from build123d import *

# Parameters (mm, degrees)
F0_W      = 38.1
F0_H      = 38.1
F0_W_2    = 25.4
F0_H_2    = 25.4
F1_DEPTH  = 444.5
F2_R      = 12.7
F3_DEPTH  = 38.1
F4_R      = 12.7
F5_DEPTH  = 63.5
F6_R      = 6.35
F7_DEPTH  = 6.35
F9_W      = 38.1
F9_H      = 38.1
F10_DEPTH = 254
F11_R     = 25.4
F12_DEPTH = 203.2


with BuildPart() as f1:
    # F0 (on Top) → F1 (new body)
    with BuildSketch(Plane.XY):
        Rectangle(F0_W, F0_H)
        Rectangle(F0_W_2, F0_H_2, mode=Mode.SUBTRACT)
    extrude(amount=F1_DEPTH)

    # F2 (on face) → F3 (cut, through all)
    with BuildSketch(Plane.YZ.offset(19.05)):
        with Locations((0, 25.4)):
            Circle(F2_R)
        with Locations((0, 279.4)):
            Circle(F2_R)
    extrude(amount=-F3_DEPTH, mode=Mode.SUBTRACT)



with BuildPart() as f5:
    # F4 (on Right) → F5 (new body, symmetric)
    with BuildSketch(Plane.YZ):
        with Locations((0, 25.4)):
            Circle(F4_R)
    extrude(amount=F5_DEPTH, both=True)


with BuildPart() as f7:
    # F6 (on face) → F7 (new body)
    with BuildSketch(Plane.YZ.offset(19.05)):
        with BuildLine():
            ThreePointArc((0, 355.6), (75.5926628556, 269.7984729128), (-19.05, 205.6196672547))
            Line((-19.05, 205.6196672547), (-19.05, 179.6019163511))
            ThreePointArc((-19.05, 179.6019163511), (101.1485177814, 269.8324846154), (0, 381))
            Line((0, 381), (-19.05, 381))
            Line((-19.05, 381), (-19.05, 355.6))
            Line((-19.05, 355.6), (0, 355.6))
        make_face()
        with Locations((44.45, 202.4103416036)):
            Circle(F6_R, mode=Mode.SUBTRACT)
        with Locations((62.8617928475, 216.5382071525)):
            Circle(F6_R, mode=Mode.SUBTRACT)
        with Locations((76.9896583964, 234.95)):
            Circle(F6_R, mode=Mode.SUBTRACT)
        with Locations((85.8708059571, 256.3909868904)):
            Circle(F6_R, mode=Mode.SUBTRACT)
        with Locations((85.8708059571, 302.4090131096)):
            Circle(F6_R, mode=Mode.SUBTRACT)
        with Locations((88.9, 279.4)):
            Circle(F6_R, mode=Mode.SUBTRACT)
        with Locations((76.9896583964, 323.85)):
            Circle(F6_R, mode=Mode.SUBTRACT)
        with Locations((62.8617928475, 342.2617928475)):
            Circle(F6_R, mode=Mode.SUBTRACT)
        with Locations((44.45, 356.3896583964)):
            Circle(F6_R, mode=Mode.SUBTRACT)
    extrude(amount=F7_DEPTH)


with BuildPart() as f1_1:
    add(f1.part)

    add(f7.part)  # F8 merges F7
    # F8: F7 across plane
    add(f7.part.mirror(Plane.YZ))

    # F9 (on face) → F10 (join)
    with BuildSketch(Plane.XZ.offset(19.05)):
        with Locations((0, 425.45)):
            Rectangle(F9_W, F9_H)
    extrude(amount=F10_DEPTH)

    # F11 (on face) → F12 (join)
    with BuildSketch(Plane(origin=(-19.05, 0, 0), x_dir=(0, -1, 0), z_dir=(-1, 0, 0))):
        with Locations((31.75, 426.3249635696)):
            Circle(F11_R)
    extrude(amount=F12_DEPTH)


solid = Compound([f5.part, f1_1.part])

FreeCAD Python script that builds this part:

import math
import FreeCAD as App
import Part
import Sketcher
from FreeCAD import Vector
Q = App.Units.Quantity

doc = App.newDocument("Part")
body = doc.addObject("PartDesign::Body", "Body")

sketch1 = body.newObject("Sketcher::SketchObject", "Sketch")
sketch1.AttachmentSupport = (doc.getObject("XY_Plane"), [""])
sketch1.MapMode = "FlatFace"
sketch1.addGeometry([
    Part.LineSegment(Vector(-19, 19, 0), Vector(-19, -19, 0)),
    Part.LineSegment(Vector(-19, -19, 0), Vector(19, -19, 0)),
    Part.LineSegment(Vector(19, -19, 0), Vector(19, 19, 0)),
    Part.LineSegment(Vector(19, 19, 0), Vector(-19, 19, 0)),
    Part.LineSegment(Vector(13, -13, 0), Vector(-13, -13, 0)),
    Part.LineSegment(Vector(-13, -13, 0), Vector(-13, 13, 0)),
    Part.LineSegment(Vector(-13, 13, 0), Vector(13, 13, 0)),
    Part.LineSegment(Vector(13, 13, 0), Vector(13, -13, 0)),
], False)
sketch1.addConstraint([
    Sketcher.Constraint("Coincident", 0, 2, 1, 1),
    Sketcher.Constraint("Coincident", 1, 2, 2, 1),
    Sketcher.Constraint("Coincident", 2, 2, 3, 1),
    Sketcher.Constraint("Coincident", 3, 2, 0, 1),
    Sketcher.Constraint("Coincident", 4, 2, 5, 1),
    Sketcher.Constraint("Coincident", 5, 2, 6, 1),
    Sketcher.Constraint("Coincident", 6, 2, 7, 1),
    Sketcher.Constraint("Coincident", 7, 2, 4, 1),
    Sketcher.Constraint("Vertical", 0),
    Sketcher.Constraint("Horizontal", 1),
    Sketcher.Constraint("Vertical", 2),
    Sketcher.Constraint("Horizontal", 3),
    Sketcher.Constraint("Horizontal", 4),
    Sketcher.Constraint("Vertical", 5),
    Sketcher.Constraint("Horizontal", 6),
    Sketcher.Constraint("Vertical", 7),
    Sketcher.Constraint("Symmetric", 0, 2, 2, 2, -1, 1),
    Sketcher.Constraint("Symmetric", 4, 2, 6, 2, -1, 1),
    Sketcher.Constraint("Equal", 3, 0),
    Sketcher.Constraint("Equal", 6, 5),
    Sketcher.Constraint("DistanceX", 4, 2, 4, 1, Q("1 in")),
    Sketcher.Constraint("DistanceX", 1, 1, 1, 2, Q("1.5 in")),
])
pad1 = body.newObject("PartDesign::Pad", "Pad")
pad1.Profile = sketch1
pad1.Length = Q("17.5 in")

sketch2 = body.newObject("Sketcher::SketchObject", "Sketch001")
sketch2.AttachmentSupport = (doc.getObject("YZ_Plane"), [""])
sketch2.MapMode = "FlatFace"
sketch2.AttachmentOffset = App.Placement(Vector(0, 0, 0.75 * 25.4), App.Rotation())
sketch2.addGeometry([
    Part.Circle(Vector(0, 25, 0), Vector(0, 0, 1), 13),
    Part.Circle(Vector(0, 279, 0), Vector(0, 0, 1), 13),
], False)
sketch2.addConstraint([
    Sketcher.Constraint("Equal", 0, 1),
    Sketcher.Constraint("PointOnObject", 0, 3, -2),
    Sketcher.Constraint("PointOnObject", 1, 3, -2),
    Sketcher.Constraint("Diameter", 0, Q("1 in")),
    Sketcher.Constraint("DistanceY", -1, 1, 0, 3, Q("1 in")),
    Sketcher.Constraint("DistanceY", -1, 1, 1, 3, Q("11 in")),
])
pocket1 = body.newObject("PartDesign::Pocket", "Pocket")
pocket1.Profile = sketch2
pocket1.Type = "ThroughAll"
body2 = doc.addObject("PartDesign::Body", "Body001")

sketch3 = body2.newObject("Sketcher::SketchObject", "Sketch002")
sketch3.AttachmentSupport = (doc.getObject("YZ_Plane001"), [""])
sketch3.MapMode = "FlatFace"
sketch3.addGeometry(Part.Circle(Vector(0, 25, 0), Vector(0, 0, 1), 13), False)
sketch3.addConstraint([
    Sketcher.Constraint("PointOnObject", 0, 3, -2),
    Sketcher.Constraint("Diameter", 0, Q("1 in")),
    Sketcher.Constraint("DistanceY", -1, 1, 0, 3, Q("1 in")),
])
pad2 = body2.newObject("PartDesign::Pad", "Pad001")
pad2.Profile = sketch3
pad2.Length = Q("5 in")
pad2.Midplane = True
body3 = doc.addObject("PartDesign::Body", "Body002")

sketch4 = body3.newObject("Sketcher::SketchObject", "Sketch003")
sketch4.AttachmentSupport = (doc.getObject("YZ_Plane002"), [""])
sketch4.MapMode = "FlatFace"
sketch4.AttachmentOffset = App.Placement(Vector(0, 0, 0.75 * 25.4), App.Rotation())
sketch4.addGeometry([
    Part.ArcOfCircle(Part.Circle(Vector(0, 279, 0), Vector(0, 0, 1), 76), math.radians(-104), math.radians(90)),
    Part.LineSegment(Vector(-19, 206, 0), Vector(-19, 180, 0)),
    Part.ArcOfCircle(Part.Circle(Vector(0, 279, 0), Vector(0, 0, 1), 102), math.radians(-101), math.radians(90)),
    Part.LineSegment(Vector(0, 381, 0), Vector(-19, 381, 0)),
    Part.LineSegment(Vector(-19, 381, 0), Vector(-19, 356, 0)),
    Part.LineSegment(Vector(-19, 356, 0), Vector(0, 356, 0)),
    Part.Circle(Vector(44, 202, 0), Vector(0, 0, 1), 6),
    Part.Circle(Vector(63, 217, 0), Vector(0, 0, 1), 6),
    Part.Circle(Vector(77, 235, 0), Vector(0, 0, 1), 6),
    Part.Circle(Vector(86, 256, 0), Vector(0, 0, 1), 6),
    Part.Circle(Vector(89, 279, 0), Vector(0, 0, 1), 6),
    Part.Circle(Vector(44, 356, 0), Vector(0, 0, 1), 6),
    Part.Circle(Vector(63, 342, 0), Vector(0, 0, 1), 6),
    Part.Circle(Vector(86, 302, 0), Vector(0, 0, 1), 6),
    Part.Circle(Vector(77, 324, 0), Vector(0, 0, 1), 6),
], False)
sketch4.addConstraint([
    Sketcher.Constraint("Coincident", 0, 1, 1, 1),
    Sketcher.Constraint("Coincident", 1, 2, 2, 1),
    Sketcher.Constraint("Tangent", 2, 2, 3, 1),
    Sketcher.Constraint("Coincident", 3, 2, 4, 1),
    Sketcher.Constraint("Coincident", 4, 2, 5, 1),
    Sketcher.Constraint("Tangent", 5, 2, 0, 2),
    Sketcher.Constraint("Vertical", 1),
    Sketcher.Constraint("Horizontal", 3),
    Sketcher.Constraint("Vertical", 4),
    Sketcher.Constraint("Horizontal", 5),
    Sketcher.Constraint("Coincident", 2, 3, 0, 3),
    Sketcher.Constraint("Equal", 6, 7),
    Sketcher.Constraint("Equal", 7, 8),
    Sketcher.Constraint("Equal", 8, 9),
    Sketcher.Constraint("Equal", 9, 10),
    Sketcher.Constraint("Equal", 10, 11),
    Sketcher.Constraint("Equal", 11, 12),
    Sketcher.Constraint("Equal", 12, 13),
    Sketcher.Constraint("Equal", 13, 14),
    Sketcher.Constraint("PointOnObject", 0, 3, -2),
    Sketcher.Constraint("Horizontal", 2, 3, 10, 3),
    Sketcher.Constraint("Vertical", 6, 3, 11, 3),
    Sketcher.Constraint("Vertical", 7, 3, 12, 3),
    Sketcher.Constraint("Vertical", 9, 3, 13, 3),
    Sketcher.Constraint("Vertical", 8, 3, 14, 3),
    Sketcher.Constraint("Vertical", 1, 2, 3, 2),
    Sketcher.Constraint("Radius", 0, Q("3 in")),
    Sketcher.Constraint("Radius", 2, Q("4 in")),
    Sketcher.Constraint("Diameter", 6, Q("0.5 in")),
    Sketcher.Constraint("DistanceY", -1, 1, 0, 3, Q("11 in")),
    Sketcher.Constraint("DistanceX", 3, 2, 3, 1, Q("0.75 in")),
    Sketcher.Constraint("DistanceX", -1, 1, 10, 3, Q("3.5 in")),
    Sketcher.Constraint("DistanceX", 0, 1, 6, 3, Q("2.5 in")),
    Sketcher.Constraint("DistanceY", -1, 1, 8, 3, Q("9.25 in")),
    Sketcher.Constraint("DistanceY", -1, 1, 14, 3, Q("12.75 in")),
    Sketcher.Constraint("DistanceY", -1, 1, 6, 3, Q("202.410342 mm")),
    Sketcher.Constraint("DistanceX", -1, 1, 8, 3, Q("76.989658 mm")),
    Sketcher.Constraint("DistanceY", -1, 1, 11, 3, Q("356.389658 mm")),
    Sketcher.Constraint("DistanceY", 7, 3, 9, 3, Q("39.85278 mm")),
    Sketcher.Constraint("DistanceY", 9, 3, 11, 3, Q("99.998672 mm")),
    Sketcher.Constraint("DistanceY", 13, 3, 12, 3, Q("39.85278 mm")),
    Sketcher.Constraint("DistanceX", -1, 1, 7, 3, Q("62.861793 mm")),
    Sketcher.Constraint("DistanceX", -1, 1, 9, 3, Q("85.870806 mm")),
    Sketcher.Constraint("DistanceY", -1, 1, 12, 3, Q("342.261793 mm")),
])
pad3 = body3.newObject("PartDesign::Pad", "Pad002")
pad3.Profile = sketch4
pad3.Length = Q("0.25 in")
doc.recompute()

body4 = doc.addObject("PartDesign::Body", "Body003")
body4.BaseFeature = body3
boolean = body.newObject("PartDesign::Boolean", "Boolean")
boolean.Type = "Fuse"
boolean.addObjects([body4])
doc.recompute()

mirroring = doc.addObject("Part::Mirroring", "Mirroring")
mirroring.Source = body3
mirroring.Base = Vector(0, 0, 0)
mirroring.Normal = Vector(1, 0, 0)
body5 = doc.addObject("PartDesign::Body", "Body004")
body5.BaseFeature = mirroring
boolean2 = body.newObject("PartDesign::Boolean", "Boolean001")
boolean2.Type = "Fuse"
boolean2.addObjects([body5])
doc.recompute()

sketch5 = body.newObject("Sketcher::SketchObject", "Sketch004")
sketch5.AttachmentSupport = (doc.getObject("XZ_Plane"), [""])
sketch5.MapMode = "FlatFace"
sketch5.AttachmentOffset = App.Placement(Vector(0, 0, 0.75 * 25.4), App.Rotation())
sketch5.addGeometry([
    Part.LineSegment(Vector(-19, 444, 0), Vector(-19, 406, 0)),
    Part.LineSegment(Vector(-19, 406, 0), Vector(19, 406, 0)),
    Part.LineSegment(Vector(19, 406, 0), Vector(19, 444, 0)),
    Part.LineSegment(Vector(19, 444, 0), Vector(-19, 444, 0)),
], False)
sketch5.addConstraint([
    Sketcher.Constraint("Coincident", 0, 2, 1, 1),
    Sketcher.Constraint("Coincident", 1, 2, 2, 1),
    Sketcher.Constraint("Coincident", 2, 2, 3, 1),
    Sketcher.Constraint("Coincident", 3, 2, 0, 1),
    Sketcher.Constraint("Vertical", 0),
    Sketcher.Constraint("Horizontal", 1),
    Sketcher.Constraint("Vertical", 2),
    Sketcher.Constraint("Horizontal", 3),
    Sketcher.Constraint("Equal", 3, 0),
    Sketcher.Constraint("DistanceX", 1, 1, 1, 2, Q("1.5 in")),
    Sketcher.Constraint("DistanceY", -1, 1, 0, 2, Q("16 in")),
    Sketcher.Constraint("DistanceX", 0, 2, -1, 1, Q("0.75 in")),
])
pad4 = body.newObject("PartDesign::Pad", "Pad003")
pad4.Profile = sketch5
pad4.Length = Q("10 in")

sketch6 = body.newObject("Sketcher::SketchObject", "Sketch005")
sketch6.AttachmentSupport = (doc.getObject("YZ_Plane"), [""])
sketch6.MapMode = "FlatFace"
sketch6.AttachmentOffset = App.Placement(Vector(0, 0, -0.75 * 25.4), App.Rotation())
sketch6.addGeometry(Part.Circle(Vector(-32, 426, 0), Vector(0, 0, 1), 25), False)
sketch6.addConstraint([
    Sketcher.Constraint("Diameter", 0, Q("2 in")),
    Sketcher.Constraint("DistanceX", 0, 3, -1, 1, Q("1.25 in")),
    Sketcher.Constraint("DistanceY", -1, 1, 0, 3, Q("426.324964 mm")),
])
pad5 = body.newObject("PartDesign::Pad", "Pad004")
pad5.Profile = sketch6
pad5.Length = Q("8 in")
pad5.Reversed = True
mirroring.Visibility = False

doc.recompute()
